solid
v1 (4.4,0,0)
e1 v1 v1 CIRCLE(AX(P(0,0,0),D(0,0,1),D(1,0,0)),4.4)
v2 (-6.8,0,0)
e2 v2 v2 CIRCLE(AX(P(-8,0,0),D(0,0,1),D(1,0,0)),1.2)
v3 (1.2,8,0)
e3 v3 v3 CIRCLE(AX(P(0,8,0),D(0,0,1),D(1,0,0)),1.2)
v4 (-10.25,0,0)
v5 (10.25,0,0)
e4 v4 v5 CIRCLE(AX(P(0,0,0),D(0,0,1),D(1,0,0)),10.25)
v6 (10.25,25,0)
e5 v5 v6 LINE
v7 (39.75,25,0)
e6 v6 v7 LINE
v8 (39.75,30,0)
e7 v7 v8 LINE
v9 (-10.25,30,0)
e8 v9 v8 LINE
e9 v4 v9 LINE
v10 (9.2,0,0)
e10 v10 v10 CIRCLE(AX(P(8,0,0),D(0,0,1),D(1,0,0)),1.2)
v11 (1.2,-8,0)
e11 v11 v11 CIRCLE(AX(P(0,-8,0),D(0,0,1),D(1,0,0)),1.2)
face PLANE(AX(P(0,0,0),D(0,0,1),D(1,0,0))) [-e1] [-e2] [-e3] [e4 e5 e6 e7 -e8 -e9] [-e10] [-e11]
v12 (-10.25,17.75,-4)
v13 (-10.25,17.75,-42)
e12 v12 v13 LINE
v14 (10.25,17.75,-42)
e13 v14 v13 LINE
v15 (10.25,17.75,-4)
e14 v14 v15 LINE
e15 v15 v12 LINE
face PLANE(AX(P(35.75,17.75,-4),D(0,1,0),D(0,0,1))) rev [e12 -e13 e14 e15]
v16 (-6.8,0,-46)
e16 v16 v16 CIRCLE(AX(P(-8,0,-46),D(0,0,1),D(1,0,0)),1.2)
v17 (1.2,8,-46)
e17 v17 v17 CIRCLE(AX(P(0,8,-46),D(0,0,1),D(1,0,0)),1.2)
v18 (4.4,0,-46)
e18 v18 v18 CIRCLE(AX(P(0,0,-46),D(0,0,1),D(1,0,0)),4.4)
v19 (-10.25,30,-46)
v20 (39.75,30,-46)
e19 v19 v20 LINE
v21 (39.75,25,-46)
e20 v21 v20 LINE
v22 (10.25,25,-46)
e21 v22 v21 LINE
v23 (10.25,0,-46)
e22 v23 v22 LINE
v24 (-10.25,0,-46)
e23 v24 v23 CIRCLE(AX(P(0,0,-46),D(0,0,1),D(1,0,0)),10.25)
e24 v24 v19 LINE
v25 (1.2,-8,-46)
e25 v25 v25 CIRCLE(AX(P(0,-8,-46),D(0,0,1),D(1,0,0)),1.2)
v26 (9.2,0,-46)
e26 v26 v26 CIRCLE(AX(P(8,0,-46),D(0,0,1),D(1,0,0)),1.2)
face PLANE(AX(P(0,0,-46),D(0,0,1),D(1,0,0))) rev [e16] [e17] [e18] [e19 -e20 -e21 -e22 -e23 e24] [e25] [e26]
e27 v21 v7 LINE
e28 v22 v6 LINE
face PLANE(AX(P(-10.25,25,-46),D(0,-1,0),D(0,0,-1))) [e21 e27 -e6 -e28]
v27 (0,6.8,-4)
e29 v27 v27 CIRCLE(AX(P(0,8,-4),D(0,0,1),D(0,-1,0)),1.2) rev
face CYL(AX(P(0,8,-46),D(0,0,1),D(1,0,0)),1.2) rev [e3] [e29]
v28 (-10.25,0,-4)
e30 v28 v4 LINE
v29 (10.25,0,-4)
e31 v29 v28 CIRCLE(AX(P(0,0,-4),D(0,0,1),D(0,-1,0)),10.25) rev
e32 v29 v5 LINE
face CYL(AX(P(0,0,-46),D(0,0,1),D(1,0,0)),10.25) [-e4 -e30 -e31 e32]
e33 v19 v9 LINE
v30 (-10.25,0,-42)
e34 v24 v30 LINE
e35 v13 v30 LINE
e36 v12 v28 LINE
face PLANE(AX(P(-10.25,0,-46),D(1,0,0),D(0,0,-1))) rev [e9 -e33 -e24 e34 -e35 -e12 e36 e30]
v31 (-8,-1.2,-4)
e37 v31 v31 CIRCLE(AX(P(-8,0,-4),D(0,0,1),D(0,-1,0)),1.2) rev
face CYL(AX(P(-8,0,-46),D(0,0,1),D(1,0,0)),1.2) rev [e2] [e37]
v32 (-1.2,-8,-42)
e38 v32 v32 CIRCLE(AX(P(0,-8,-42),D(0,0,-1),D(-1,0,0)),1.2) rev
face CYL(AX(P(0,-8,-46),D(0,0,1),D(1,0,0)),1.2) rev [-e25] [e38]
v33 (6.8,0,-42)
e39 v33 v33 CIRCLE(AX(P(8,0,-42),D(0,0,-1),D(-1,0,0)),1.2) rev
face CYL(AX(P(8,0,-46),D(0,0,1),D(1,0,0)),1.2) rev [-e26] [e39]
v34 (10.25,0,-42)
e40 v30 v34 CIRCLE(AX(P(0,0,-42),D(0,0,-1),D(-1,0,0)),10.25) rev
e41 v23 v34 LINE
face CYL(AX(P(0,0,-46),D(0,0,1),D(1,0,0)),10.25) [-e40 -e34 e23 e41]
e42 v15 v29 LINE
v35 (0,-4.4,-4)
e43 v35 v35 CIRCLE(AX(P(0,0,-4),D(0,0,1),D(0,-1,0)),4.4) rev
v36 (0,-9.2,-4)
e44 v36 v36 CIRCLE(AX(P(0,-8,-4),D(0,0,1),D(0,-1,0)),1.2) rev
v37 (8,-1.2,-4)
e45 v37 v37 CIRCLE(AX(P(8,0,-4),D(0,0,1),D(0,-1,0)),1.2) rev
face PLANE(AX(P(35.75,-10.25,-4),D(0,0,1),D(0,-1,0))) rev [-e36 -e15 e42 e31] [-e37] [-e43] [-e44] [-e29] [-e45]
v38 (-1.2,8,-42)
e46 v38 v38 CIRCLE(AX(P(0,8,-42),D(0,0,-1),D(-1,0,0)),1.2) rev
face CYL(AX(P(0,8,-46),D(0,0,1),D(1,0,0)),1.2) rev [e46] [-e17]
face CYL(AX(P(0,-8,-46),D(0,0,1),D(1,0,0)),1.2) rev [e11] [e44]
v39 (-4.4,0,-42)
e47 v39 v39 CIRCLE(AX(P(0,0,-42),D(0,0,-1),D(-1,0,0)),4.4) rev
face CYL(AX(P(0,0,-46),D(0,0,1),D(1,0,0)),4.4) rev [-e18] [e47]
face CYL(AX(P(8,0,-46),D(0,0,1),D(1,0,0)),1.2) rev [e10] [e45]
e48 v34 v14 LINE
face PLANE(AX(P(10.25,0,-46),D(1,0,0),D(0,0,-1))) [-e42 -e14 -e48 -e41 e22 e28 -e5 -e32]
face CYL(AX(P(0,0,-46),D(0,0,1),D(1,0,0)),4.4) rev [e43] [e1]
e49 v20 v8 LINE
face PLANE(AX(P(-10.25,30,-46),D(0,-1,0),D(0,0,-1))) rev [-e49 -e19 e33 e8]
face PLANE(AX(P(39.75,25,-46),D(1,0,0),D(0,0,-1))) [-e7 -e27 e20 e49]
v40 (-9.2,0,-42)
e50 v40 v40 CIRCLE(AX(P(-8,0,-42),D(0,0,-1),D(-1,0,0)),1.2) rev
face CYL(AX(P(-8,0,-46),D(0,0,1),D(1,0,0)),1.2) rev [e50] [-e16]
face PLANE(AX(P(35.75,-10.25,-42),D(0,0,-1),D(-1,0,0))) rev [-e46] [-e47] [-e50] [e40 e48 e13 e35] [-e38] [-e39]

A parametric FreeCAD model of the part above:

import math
import FreeCAD as App
import Part
import Sketcher
from FreeCAD import Vector


def add_polygon(sketch, points):
    """Adds a closed chain of lines whose ends are joined by coincident constraints."""
    first, n = sketch.GeometryCount, len(points)
    for a, b in zip(points, points[1:] + points[:1]):
        sketch.addGeometry(Part.LineSegment(App.Vector(*a, 0), App.Vector(*b, 0)), False)
    for i in range(n):
        sketch.addConstraint(Sketcher.Constraint("Coincident", first + i, 2, first + (i + 1) % n, 1))

doc = App.newDocument("Part")
body = doc.addObject("PartDesign::Body", "Body")

# Sketch on XY plane
sketch1 = doc.addObject("Sketcher::SketchObject", "Sketch")
body.addObject(sketch1)
sketch1.AttachmentSupport = (doc.XY_Plane, [""])
sketch1.MapMode = "FlatFace"
sketch1.addGeometry(Part.LineSegment(Vector(10.25, 0, 0), Vector(10.25, 25, 0)), False)
sketch1.addGeometry(Part.LineSegment(Vector(10.25, 25, 0), Vector(39.75, 25, 0)), False)
sketch1.addGeometry(Part.LineSegment(Vector(39.75, 25, 0), Vector(39.75, 30, 0)), False)
sketch1.addGeometry(Part.LineSegment(Vector(39.75, 30, 0), Vector(-10.25, 30, 0)), False)
sketch1.addGeometry(Part.LineSegment(Vector(-10.25, 30, 0), Vector(-10.25, 0, 0)), False)
sketch1.addGeometry(Part.ArcOfCircle(Part.Circle(Vector(0, 0, 0), Vector(0, 0, 1), 10.25), math.radians(180), math.radians(360)), False)
sketch1.addGeometry(Part.ArcOfCircle(Part.Circle(Vector(-8, 0, 0), Vector(0, 0, 1), 1.2), math.radians(86), math.radians(180)), False)
sketch1.addGeometry(Part.ArcOfCircle(Part.Circle(Vector(-8, 0, 0), Vector(0, 0, 1), 1.2), math.radians(0), math.radians(86)), False)
sketch1.addGeometry(Part.ArcOfCircle(Part.Circle(Vector(-8, 0, 0), Vector(0, 0, 1), 1.2), math.radians(-86), math.radians(0)), False)
sketch1.addGeometry(Part.ArcOfCircle(Part.Circle(Vector(-8, 0, 0), Vector(0, 0, 1), 1.2), math.radians(180), math.radians(274)), False)
sketch1.addGeometry(Part.Circle(Vector(0, 0, 0), Vector(0, 0, 1), 4.4), False)
sketch1.addGeometry(Part.ArcOfCircle(Part.Circle(Vector(8, 0, 0), Vector(0, 0, 1), 1.2), math.radians(94), math.radians(180)), False)
sketch1.addGeometry(Part.ArcOfCircle(Part.Circle(Vector(8, 0, 0), Vector(0, 0, 1), 1.2), math.radians(0), math.radians(94)), False)
sketch1.addGeometry(Part.ArcOfCircle(Part.Circle(Vector(8, 0, 0), Vector(0, 0, 1), 1.2), math.radians(-94), math.radians(0)), False)
sketch1.addGeometry(Part.ArcOfCircle(Part.Circle(Vector(8, 0, 0), Vector(0, 0, 1), 1.2), math.radians(180), math.radians(266)), False)
sketch1.addGeometry(Part.ArcOfCircle(Part.Circle(Vector(0, -8, 0), Vector(0, 0, 1), 1.2), math.radians(0), math.radians(4.3)), False)
sketch1.addGeometry(Part.ArcOfCircle(Part.Circle(Vector(0, -8, 0), Vector(0, 0, 1), 1.2), math.radians(176), math.radians(360)), False)
sketch1.addGeometry(Part.ArcOfCircle(Part.Circle(Vector(0, -8, 0), Vector(0, 0, 1), 1.2), math.radians(4), math.radians(176)), False)
sketch1.addGeometry(Part.ArcOfCircle(Part.Circle(Vector(0, 8, 0), Vector(0, 0, 1), 1.2), math.radians(0), math.radians(184)), False)
sketch1.addGeometry(Part.ArcOfCircle(Part.Circle(Vector(0, 8, 0), Vector(0, 0, 1), 1.2), math.radians(-4.3), math.radians(0)), False)
sketch1.addGeometry(Part.ArcOfCircle(Part.Circle(Vector(0, 8, 0), Vector(0, 0, 1), 1.2), math.radians(-176), math.radians(-4)), False)
sketch1.addConstraint(Sketcher.Constraint("Coincident", 0, 2, 1, 1))
sketch1.addConstraint(Sketcher.Constraint("Coincident", 1, 2, 2, 1))
sketch1.addConstraint(Sketcher.Constraint("Coincident", 2, 2, 3, 1))
sketch1.addConstraint(Sketcher.Constraint("Coincident", 3, 2, 4, 1))
sketch1.addConstraint(Sketcher.Constraint("Tangent", 4, 2, 5, 1))
sketch1.addConstraint(Sketcher.Constraint("Tangent", 5, 2, 0, 1))
sketch1.addConstraint(Sketcher.Constraint("Tangent", 6, 1, 7, 2))
sketch1.addConstraint(Sketcher.Constraint("Tangent", 7, 1, 8, 2))
sketch1.addConstraint(Sketcher.Constraint("Tangent", 8, 1, 9, 2))
sketch1.addConstraint(Sketcher.Constraint("Tangent", 9, 1, 6, 2))
sketch1.addConstraint(Sketcher.Constraint("Tangent", 11, 1, 12, 2))
sketch1.addConstraint(Sketcher.Constraint("Tangent", 12, 1, 13, 2))
sketch1.addConstraint(Sketcher.Constraint("Tangent", 13, 1, 14, 2))
sketch1.addConstraint(Sketcher.Constraint("Tangent", 14, 1, 11, 2))
sketch1.addConstraint(Sketcher.Constraint("Tangent", 15, 1, 16, 2))
sketch1.addConstraint(Sketcher.Constraint("Tangent", 16, 1, 17, 2))
sketch1.addConstraint(Sketcher.Constraint("Tangent", 17, 1, 15, 2))
sketch1.addConstraint(Sketcher.Constraint("Tangent", 18, 1, 19, 2))
sketch1.addConstraint(Sketcher.Constraint("Tangent", 19, 1, 20, 2))
sketch1.addConstraint(Sketcher.Constraint("Tangent", 20, 1, 18, 2))
sketch1.addConstraint(Sketcher.Constraint("Vertical", 0))
sketch1.addConstraint(Sketcher.Constraint("Horizontal", 1))
sketch1.addConstraint(Sketcher.Constraint("Vertical", 2))
sketch1.addConstraint(Sketcher.Constraint("Horizontal", 3))
sketch1.addConstraint(Sketcher.Constraint("Vertical", 4))
sketch1.addConstraint(Sketcher.Constraint("Coincident", 5, 3, -1, 1))
sketch1.addConstraint(Sketcher.Constraint("Coincident", 10, 3, -1, 1))
sketch1.addConstraint(Sketcher.Constraint("Equal", 6, 7))
sketch1.addConstraint(Sketcher.Constraint("Equal", 9, 11))
sketch1.addConstraint(Sketcher.Constraint("Equal", 11, 12))
sketch1.addConstraint(Sketcher.Constraint("Equal", 14, 15))
sketch1.addConstraint(Sketcher.Constraint("Equal", 17, 18))
sketch1.addConstraint(Sketcher.Constraint("Symmetric", 6, 3, 11, 3, -1, 1))
sketch1.addConstraint(Sketcher.Constraint("Symmetric", 15, 3, 18, 3, -1, 1))
sketch1.addConstraint(Sketcher.Constraint("Symmetric", 6, 1, 11, 1, -2))
sketch1.addConstraint(Sketcher.Constraint("Symmetric", 16, 1, 17, 1, -2))
sketch1.addConstraint(Sketcher.Constraint("PointOnObject", 7, 1, -1))
sketch1.addConstraint(Sketcher.Constraint("PointOnObject", 9, 1, -1))
sketch1.addConstraint(Sketcher.Constraint("PointOnObject", 12, 1, -1))
sketch1.addConstraint(Sketcher.Constraint("PointOnObject", 14, 1, -1))
sketch1.addConstraint(Sketcher.Constraint("Horizontal", 8, 1, 13, 1))
sketch1.addConstraint(Sketcher.Constraint("Horizontal", 17, 3, 15, 1))
sketch1.addConstraint(Sketcher.Constraint("Horizontal", 20, 3, 18, 1))
sketch1.addConstraint(Sketcher.Constraint("Horizontal", 19, 1, 20, 1))
sketch1.addConstraint(Sketcher.Constraint("Vertical", 6, 1, 8, 1))
sketch1.addConstraint(Sketcher.Constraint("Vertical", 17, 1, 19, 1))
sketch1.addConstraint(Sketcher.Constraint("Diameter", 10, 8.8))
sketch1.addConstraint(Sketcher.Constraint("Radius", 6, 1.2))
sketch1.addConstraint(Sketcher.Constraint("DistanceX", 3, 2, 3, 1, 50.0))
sketch1.addConstraint(Sketcher.Constraint("DistanceY", 0, 1, 0, 2, 25.0))
sketch1.addConstraint(Sketcher.Constraint("DistanceY", 2, 1, 2, 2, 5.0))
sketch1.addConstraint(Sketcher.Constraint("Radius", 5, 10.25))
sketch1.addConstraint(Sketcher.Constraint("DistanceX", 6, 3, -1, 1, 8.0))
sketch1.addConstraint(Sketcher.Constraint("DistanceY", 15, 3, -1, 1, 8.0))
sketch1.addConstraint(Sketcher.Constraint("DistanceX", 6, 1, -1, 1, 7.91))
sketch1.addConstraint(Sketcher.Constraint("DistanceY", 16, 1, -1, 1, 7.91))
pad1 = doc.addObject("PartDesign::Pad", "Pad")
body.addObject(pad1)
pad1.Profile = sketch1
pad1.Length = 46
pad1.Reversed = True

# Sketch on YZ plane
sketch2 = doc.addObject("Sketcher::SketchObject", "Sketch001")
body.addObject(sketch2)
sketch2.AttachmentSupport = (doc.YZ_Plane, [""])
sketch2.MapMode = "FlatFace"
sketch2.AttachmentOffset = App.Placement(Vector(0, 0, -10.25), App.Rotation())
add_polygon(sketch2, [(18, -42), (-10, -42), (-10, -4), (18, -4)])  # lines 0-3
sketch2.addConstraint(Sketcher.Constraint("Horizontal", 0))
sketch2.addConstraint(Sketcher.Constraint("Vertical", 1))
sketch2.addConstraint(Sketcher.Constraint("Horizontal", 2))
sketch2.addConstraint(Sketcher.Constraint("Vertical", 3))
sketch2.addConstraint(Sketcher.Constraint("DistanceX", 0, 2, 0, 1, 28.0))
sketch2.addConstraint(Sketcher.Constraint("DistanceY", 1, 1, 1, 2, 38.0))
sketch2.addConstraint(Sketcher.Constraint("DistanceY", 0, 2, -1, 1, 42.0))
sketch2.addConstraint(Sketcher.Constraint("DistanceX", 0, 2, -1, 1, 10.25))
pocket1 = doc.addObject("PartDesign::Pocket", "Pocket")
body.addObject(pocket1)
pocket1.Profile = sketch2
pocket1.Length = 46
pocket1.Reversed = True

doc.recompute()
